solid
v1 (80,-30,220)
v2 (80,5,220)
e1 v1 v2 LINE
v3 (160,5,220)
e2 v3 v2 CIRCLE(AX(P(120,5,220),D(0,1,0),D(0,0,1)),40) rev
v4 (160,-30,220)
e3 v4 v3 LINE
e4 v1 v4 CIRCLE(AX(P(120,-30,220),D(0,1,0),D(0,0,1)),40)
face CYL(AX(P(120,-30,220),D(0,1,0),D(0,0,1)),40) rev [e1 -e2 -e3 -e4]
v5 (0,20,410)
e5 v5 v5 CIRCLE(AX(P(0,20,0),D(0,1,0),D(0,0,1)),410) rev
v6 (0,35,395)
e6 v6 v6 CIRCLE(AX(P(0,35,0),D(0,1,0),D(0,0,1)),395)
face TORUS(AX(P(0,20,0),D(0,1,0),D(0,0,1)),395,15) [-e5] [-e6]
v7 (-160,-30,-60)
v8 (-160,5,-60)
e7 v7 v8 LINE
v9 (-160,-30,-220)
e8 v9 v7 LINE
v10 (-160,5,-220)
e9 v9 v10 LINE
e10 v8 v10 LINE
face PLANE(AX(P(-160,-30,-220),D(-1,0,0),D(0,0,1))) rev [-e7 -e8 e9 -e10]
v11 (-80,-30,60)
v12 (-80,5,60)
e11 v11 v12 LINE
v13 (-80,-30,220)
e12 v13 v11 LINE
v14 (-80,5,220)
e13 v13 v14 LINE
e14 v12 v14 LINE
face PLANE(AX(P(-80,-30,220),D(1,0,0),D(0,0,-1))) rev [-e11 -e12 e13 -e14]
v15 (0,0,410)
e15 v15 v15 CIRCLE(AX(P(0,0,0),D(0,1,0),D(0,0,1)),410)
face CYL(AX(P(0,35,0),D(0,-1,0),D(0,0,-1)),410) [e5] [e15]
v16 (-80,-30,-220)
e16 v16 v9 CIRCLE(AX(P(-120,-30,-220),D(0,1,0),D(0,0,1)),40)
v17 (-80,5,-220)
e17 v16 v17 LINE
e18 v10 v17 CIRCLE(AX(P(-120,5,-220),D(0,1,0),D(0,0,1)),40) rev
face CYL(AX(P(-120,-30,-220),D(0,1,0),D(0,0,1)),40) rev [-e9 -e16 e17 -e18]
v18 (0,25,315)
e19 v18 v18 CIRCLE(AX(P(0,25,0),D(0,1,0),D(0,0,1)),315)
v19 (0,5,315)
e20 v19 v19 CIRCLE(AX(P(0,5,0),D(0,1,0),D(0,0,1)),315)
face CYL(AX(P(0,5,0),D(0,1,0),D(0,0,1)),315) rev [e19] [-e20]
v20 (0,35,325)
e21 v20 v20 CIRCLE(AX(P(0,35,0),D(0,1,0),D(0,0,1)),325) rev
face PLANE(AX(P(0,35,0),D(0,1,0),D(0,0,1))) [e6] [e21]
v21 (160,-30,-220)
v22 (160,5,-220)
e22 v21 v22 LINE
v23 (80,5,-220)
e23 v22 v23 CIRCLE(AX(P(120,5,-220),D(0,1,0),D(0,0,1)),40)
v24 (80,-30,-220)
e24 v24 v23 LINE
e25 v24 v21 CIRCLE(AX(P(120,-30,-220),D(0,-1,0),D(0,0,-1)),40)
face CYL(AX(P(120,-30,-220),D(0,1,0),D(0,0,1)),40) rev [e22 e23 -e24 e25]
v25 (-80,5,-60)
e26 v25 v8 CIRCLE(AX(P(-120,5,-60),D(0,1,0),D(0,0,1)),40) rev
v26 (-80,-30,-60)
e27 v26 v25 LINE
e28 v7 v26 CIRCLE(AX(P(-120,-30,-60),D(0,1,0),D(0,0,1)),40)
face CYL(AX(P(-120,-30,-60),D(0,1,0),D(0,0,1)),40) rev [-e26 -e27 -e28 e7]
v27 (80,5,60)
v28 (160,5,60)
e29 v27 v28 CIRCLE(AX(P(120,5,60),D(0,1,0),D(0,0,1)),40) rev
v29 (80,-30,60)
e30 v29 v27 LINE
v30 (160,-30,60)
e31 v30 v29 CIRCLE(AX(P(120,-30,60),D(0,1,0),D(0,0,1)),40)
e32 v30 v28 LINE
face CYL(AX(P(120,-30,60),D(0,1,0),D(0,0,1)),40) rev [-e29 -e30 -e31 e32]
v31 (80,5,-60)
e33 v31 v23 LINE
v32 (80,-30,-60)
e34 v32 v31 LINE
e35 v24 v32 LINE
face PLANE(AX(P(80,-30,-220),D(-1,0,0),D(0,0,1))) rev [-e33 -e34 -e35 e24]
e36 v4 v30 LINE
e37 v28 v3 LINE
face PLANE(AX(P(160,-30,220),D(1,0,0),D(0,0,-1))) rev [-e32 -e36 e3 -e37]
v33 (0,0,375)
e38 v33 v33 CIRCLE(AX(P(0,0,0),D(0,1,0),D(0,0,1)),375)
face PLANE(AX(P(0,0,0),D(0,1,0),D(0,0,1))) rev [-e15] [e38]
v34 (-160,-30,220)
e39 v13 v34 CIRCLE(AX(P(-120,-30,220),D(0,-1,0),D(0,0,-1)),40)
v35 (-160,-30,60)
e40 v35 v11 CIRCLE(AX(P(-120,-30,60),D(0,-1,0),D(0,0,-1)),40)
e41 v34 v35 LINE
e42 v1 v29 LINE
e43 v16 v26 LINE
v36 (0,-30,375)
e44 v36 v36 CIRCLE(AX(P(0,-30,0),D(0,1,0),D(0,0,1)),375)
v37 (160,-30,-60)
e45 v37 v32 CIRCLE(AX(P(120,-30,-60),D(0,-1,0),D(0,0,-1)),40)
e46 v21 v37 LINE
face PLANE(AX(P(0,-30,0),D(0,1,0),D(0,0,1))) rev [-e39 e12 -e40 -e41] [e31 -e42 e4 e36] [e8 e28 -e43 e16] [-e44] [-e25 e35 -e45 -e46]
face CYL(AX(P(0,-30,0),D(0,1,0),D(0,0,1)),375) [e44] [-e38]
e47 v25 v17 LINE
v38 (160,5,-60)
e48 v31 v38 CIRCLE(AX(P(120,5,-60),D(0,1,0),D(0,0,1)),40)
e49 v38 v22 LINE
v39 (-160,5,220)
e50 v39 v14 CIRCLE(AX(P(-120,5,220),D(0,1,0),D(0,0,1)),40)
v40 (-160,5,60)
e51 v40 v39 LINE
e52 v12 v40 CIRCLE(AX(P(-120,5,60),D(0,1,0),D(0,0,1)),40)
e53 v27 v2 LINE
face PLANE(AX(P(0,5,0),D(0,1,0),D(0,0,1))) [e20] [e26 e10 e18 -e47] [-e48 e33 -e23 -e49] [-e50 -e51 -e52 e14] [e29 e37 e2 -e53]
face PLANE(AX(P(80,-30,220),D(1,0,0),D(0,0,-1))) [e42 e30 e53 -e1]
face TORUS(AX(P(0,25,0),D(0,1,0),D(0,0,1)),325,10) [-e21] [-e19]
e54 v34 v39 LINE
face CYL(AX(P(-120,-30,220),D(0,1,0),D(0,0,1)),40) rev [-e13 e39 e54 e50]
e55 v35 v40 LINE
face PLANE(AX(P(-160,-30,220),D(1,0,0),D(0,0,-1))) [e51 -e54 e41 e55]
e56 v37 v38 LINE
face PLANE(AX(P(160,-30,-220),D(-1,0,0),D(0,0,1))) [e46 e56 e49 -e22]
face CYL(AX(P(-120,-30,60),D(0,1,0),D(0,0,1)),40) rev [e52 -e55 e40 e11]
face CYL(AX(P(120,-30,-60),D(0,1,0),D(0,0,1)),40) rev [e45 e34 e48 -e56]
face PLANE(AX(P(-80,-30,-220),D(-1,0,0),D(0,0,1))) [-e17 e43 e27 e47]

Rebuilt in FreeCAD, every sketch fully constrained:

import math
import FreeCAD as App
import Part
import Sketcher

V = App.Vector


def edges_at(feature, points):
    """Names of the edges that pass closest to the given points."""
    edges = feature.Shape.Edges
    near = lambda p: min(range(len(edges)), key=lambda i: edges[i].distToShape(Part.Vertex(*p))[0])
    return sorted({f"Edge{near(p) + 1}" for p in points})

doc = App.newDocument("Part")
body = doc.addObject("PartDesign::Body", "Body")

# Sketch on XZ plane
sketch1 = doc.addObject("Sketcher::SketchObject", "Sketch")
body.addObject(sketch1)
sketch1.AttachmentSupport = (doc.XZ_Plane, [""])
sketch1.MapMode = "FlatFace"
sketch1.addGeometry(Part.Circle(V(0, 0, 0), V(0, 0, 1), 375), False)
sketch1.addConstraint([
    Sketcher.Constraint("Coincident", 0, 3, -1, 1),
    Sketcher.Constraint("Diameter", 0, 750.0),
])
pad1 = doc.addObject("PartDesign::Pad", "Pad")
body.addObject(pad1)
pad1.Profile = sketch1
pad1.Length = 30

# Sketch on XZ plane
sketch2 = doc.addObject("Sketcher::SketchObject", "Sketch001")
body.addObject(sketch2)
sketch2.AttachmentSupport = (doc.XZ_Plane, [""])
sketch2.MapMode = "FlatFace"
sketch2.addGeometry(Part.Circle(V(0, 0, 0), V(0, 0, 1), 410), False)
sketch2.addConstraint([
    Sketcher.Constraint("Coincident", 0, 3, -1, 1),
    Sketcher.Constraint("Diameter", 0, 820.0),
])
pad2 = doc.addObject("PartDesign::Pad", "Pad001")
body.addObject(pad2)
pad2.Profile = sketch2
pad2.Length = 35
pad2.Reversed = True

# Sketch on XZ plane
sketch3 = doc.addObject("Sketcher::SketchObject", "Sketch002")
body.addObject(sketch3)
sketch3.AttachmentSupport = (doc.XZ_Plane, [""])
sketch3.MapMode = "FlatFace"
sketch3.addGeometry([
    Part.LineSegment(V(-80, -60, 0), V(-80, -220, 0)),  # 0
    Part.ArcOfCircle(Part.Circle(V(-120, -220, 0), V(0, 0, 1), 40), math.radians(180), math.radians(360)),  # 1
    Part.LineSegment(V(-160, -220, 0), V(-160, -60, 0)),  # 2
    Part.ArcOfCircle(Part.Circle(V(-120, -60, 0), V(0, 0, 1), 40), math.radians(0), math.radians(180)),  # 3
    Part.LineSegment(V(-80, 220, 0), V(-80, 60, 0)),  # 4
    Part.ArcOfCircle(Part.Circle(V(-120, 60, 0), V(0, 0, 1), 40), math.radians(180), math.radians(360)),  # 5
    Part.LineSegment(V(-160, 60, 0), V(-160, 220, 0)),  # 6
    Part.ArcOfCircle(Part.Circle(V(-120, 220, 0), V(0, 0, 1), 40), math.radians(0), math.radians(180)),  # 7
    Part.LineSegment(V(80, -220, 0), V(80, -60, 0)),  # 8
    Part.ArcOfCircle(Part.Circle(V(120, -60, 0), V(0, 0, 1), 40), math.radians(0), math.radians(180)),  # 9
    Part.LineSegment(V(160, -60, 0), V(160, -220, 0)),  # 10
    Part.ArcOfCircle(Part.Circle(V(120, -220, 0), V(0, 0, 1), 40), math.radians(180), math.radians(360)),  # 11
    Part.LineSegment(V(80, 60, 0), V(80, 220, 0)),  # 12
    Part.ArcOfCircle(Part.Circle(V(120, 220, 0), V(0, 0, 1), 40), math.radians(0), math.radians(180)),  # 13
    Part.LineSegment(V(160, 220, 0), V(160, 60, 0)),  # 14
    Part.ArcOfCircle(Part.Circle(V(120, 60, 0), V(0, 0, 1), 40), math.radians(180), math.radians(360)),  # 15
], False)
sketch3.addConstraint([
    Sketcher.Constraint("Tangent", 0, 2, 1, 2),
    Sketcher.Constraint("Tangent", 1, 1, 2, 1),
    Sketcher.Constraint("Tangent", 2, 2, 3, 2),
    Sketcher.Constraint("Tangent", 3, 1, 0, 1),
    Sketcher.Constraint("Tangent", 4, 2, 5, 2),
    Sketcher.Constraint("Tangent", 5, 1, 6, 1),
    Sketcher.Constraint("Tangent", 6, 2, 7, 2),
    Sketcher.Constraint("Tangent", 7, 1, 4, 1),
    Sketcher.Constraint("Tangent", 8, 2, 9, 2),
    Sketcher.Constraint("Tangent", 9, 1, 10, 1),
    Sketcher.Constraint("Tangent", 10, 2, 11, 2),
    Sketcher.Constraint("Tangent", 11, 1, 8, 1),
    Sketcher.Constraint("Tangent", 12, 2, 13, 2),
    Sketcher.Constraint("Tangent", 13, 1, 14, 1),
    Sketcher.Constraint("Tangent", 14, 2, 15, 2),
    Sketcher.Constraint("Tangent", 15, 1, 12, 1),
    Sketcher.Constraint("Vertical", 0),
    Sketcher.Constraint("Vertical", 2),
    Sketcher.Constraint("Vertical", 4),
    Sketcher.Constraint("Vertical", 6),
    Sketcher.Constraint("Vertical", 8),
    Sketcher.Constraint("Vertical", 10),
    Sketcher.Constraint("Vertical", 12),
    Sketcher.Constraint("Vertical", 14),
    Sketcher.Constraint("Equal", 3, 5),
    Sketcher.Constraint("Equal", 7, 9),
    Sketcher.Constraint("Equal", 11, 13),
    Sketcher.Constraint("Symmetric", 5, 3, 9, 3, -1, 1),
    Sketcher.Constraint("Symmetric", 1, 3, 13, 3, -1, 1),
    Sketcher.Constraint("Symmetric", 3, 3, 9, 3, -2),
    Sketcher.Constraint("Horizontal", 1, 3, 11, 3),
    Sketcher.Constraint("Horizontal", 7, 3, 13, 3),
    Sketcher.Constraint("Horizontal", 5, 3, 15, 3),
    Sketcher.Constraint("Radius", 1, 40.0),
    Sketcher.Constraint("DistanceY", 0, 2, 0, 1, 160.0),
    Sketcher.Constraint("DistanceX", 1, 3, -1, 1, 120.0),
    Sketcher.Constraint("DistanceY", 1, 3, -1, 1, 220.0),
])
pocket1 = doc.addObject("PartDesign::Pocket", "Pocket")
body.addObject(pocket1)
pocket1.Profile = sketch3
pocket1.Type = "ThroughAll"
pocket1.Midplane = True

# Sketch on XZ plane
sketch4 = doc.addObject("Sketcher::SketchObject", "Sketch003")
body.addObject(sketch4)
sketch4.AttachmentSupport = (doc.XZ_Plane, [""])
sketch4.MapMode = "FlatFace"
sketch4.AttachmentOffset = App.Placement(V(0, 0, -35), App.Rotation())
sketch4.addGeometry(Part.Circle(V(0, 0, 0), V(0, 0, 1), 315), False)
sketch4.addConstraint([
    Sketcher.Constraint("Coincident", 0, 3, -1, 1),
    Sketcher.Constraint("Diameter", 0, 630.0),
])
pocket2 = doc.addObject("PartDesign::Pocket", "Pocket001")
body.addObject(pocket2)
pocket2.Profile = sketch4
pocket2.Length = 30
pocket2.Reversed = True
doc.recompute()

fillet = doc.addObject("PartDesign::Fillet", "Fillet")
body.addObject(fillet)
fillet.Base = (pocket2, edges_at(pocket2, [(-410, 35, 0)]))
fillet.Radius = 15
doc.recompute()

fillet2 = doc.addObject("PartDesign::Fillet", "Fillet001")
body.addObject(fillet2)
fillet2.Base = (fillet, edges_at(fillet, [(-315, 35, 0)]))
fillet2.Radius = 10

doc.recompute()
